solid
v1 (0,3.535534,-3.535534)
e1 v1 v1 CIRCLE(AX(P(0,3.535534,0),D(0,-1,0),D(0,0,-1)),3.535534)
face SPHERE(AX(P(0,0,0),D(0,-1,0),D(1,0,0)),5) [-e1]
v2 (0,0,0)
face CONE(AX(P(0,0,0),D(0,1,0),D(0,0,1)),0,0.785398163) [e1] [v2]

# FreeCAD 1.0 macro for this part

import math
import FreeCAD as App
import Part
import Sketcher
Q = App.Units.Quantity

doc = App.newDocument("Part")
body = doc.addObject("PartDesign::Body", "Body")

# Sketch on XY plane
sketch1 = body.newObject("Sketcher::SketchObject", "Sketch")
sketch1.AttachmentSupport = (doc.getObject("XY_Plane"), [""])
sketch1.MapMode = "FlatFace"
sketch1.addGeometry([
    Part.LineSegment(App.Vector(0, 0, 0), App.Vector(3.535534, 3.535534, 0)),
    Part.ArcOfCircle(Part.Circle(App.Vector(0, 0, 0), App.Vector(0, 0, 1), 5), math.radians(45), math.radians(90)),
    Part.LineSegment(App.Vector(0, 5, 0), App.Vector(0, 0, 0)),
], False)
sketch1.addConstraint([
    Sketcher.Constraint("Coincident", 0, 2, 1, 1),
    Sketcher.Constraint("Coincident", 1, 2, 2, 1),
    Sketcher.Constraint("Coincident", 2, 2, 0, 1),
    Sketcher.Constraint("Vertical", 2),
    Sketcher.Constraint("Coincident", 1, 3, -1, 1),
    Sketcher.Constraint("Coincident", 2, 2, -1, 1),
    Sketcher.Constraint("Radius", 1, 5.0),
    Sketcher.Constraint("Angle", 0, Q("45 deg")),
])
revolution = body.newObject("PartDesign::Revolution", "Revolution")
revolution.Profile = sketch1
revolution.ReferenceAxis = (sketch1, ["V_Axis"])
revolution.Angle = 360

doc.recompute()
